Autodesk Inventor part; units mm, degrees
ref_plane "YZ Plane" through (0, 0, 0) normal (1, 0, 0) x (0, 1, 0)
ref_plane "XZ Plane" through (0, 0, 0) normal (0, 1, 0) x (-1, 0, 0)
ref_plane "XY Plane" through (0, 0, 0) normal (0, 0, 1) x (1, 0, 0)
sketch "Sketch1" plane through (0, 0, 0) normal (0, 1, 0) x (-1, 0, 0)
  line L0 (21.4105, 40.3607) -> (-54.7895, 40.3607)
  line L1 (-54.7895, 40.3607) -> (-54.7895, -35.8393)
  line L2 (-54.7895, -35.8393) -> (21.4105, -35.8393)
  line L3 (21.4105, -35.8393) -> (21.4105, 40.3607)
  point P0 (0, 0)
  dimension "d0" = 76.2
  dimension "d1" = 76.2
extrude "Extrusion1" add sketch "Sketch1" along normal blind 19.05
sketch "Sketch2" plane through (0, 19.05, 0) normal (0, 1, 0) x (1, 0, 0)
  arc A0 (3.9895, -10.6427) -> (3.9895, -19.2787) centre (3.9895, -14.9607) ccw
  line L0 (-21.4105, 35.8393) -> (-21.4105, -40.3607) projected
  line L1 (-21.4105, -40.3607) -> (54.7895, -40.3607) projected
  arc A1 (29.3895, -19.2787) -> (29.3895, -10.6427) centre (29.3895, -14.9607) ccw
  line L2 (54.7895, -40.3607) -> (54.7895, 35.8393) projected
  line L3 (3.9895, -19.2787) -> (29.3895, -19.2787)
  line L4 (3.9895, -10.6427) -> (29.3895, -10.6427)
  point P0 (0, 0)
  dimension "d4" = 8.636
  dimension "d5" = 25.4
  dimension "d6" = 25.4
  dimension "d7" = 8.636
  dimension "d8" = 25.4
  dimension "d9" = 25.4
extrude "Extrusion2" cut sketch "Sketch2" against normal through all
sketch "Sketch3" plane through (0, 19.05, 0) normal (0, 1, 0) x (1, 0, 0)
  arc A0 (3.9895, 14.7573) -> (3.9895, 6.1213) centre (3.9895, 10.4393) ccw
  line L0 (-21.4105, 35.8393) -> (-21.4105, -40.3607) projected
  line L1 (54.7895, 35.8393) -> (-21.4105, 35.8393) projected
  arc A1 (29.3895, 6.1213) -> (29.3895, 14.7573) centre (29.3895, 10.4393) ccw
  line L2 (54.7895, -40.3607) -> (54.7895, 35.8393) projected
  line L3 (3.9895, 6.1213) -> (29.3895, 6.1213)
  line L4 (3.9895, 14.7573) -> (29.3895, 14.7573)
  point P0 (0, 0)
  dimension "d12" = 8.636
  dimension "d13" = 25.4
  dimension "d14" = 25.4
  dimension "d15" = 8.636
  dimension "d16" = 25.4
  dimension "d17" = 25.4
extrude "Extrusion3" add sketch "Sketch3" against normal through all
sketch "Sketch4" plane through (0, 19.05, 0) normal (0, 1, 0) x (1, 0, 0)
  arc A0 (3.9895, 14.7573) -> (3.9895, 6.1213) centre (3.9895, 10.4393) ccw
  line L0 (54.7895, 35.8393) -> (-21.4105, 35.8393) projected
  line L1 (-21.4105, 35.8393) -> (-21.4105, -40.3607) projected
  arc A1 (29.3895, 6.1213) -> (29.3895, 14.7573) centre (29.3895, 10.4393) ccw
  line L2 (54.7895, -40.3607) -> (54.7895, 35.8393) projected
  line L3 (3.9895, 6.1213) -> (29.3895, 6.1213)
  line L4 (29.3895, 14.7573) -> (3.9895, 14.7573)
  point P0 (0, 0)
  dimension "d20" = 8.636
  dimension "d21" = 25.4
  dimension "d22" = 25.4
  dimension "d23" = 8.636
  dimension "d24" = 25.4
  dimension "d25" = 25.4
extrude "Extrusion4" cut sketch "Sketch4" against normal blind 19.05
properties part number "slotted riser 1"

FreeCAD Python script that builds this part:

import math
import FreeCAD as App
import Part
import Sketcher
from FreeCAD import Vector
Q = App.Units.Quantity


def add_polygon(sketch, points):
    """Adds a closed chain of lines whose ends are joined by coincident constraints."""
    first, n = sketch.GeometryCount, len(points)
    for a, b in zip(points, points[1:] + points[:1]):
        sketch.addGeometry(Part.LineSegment(App.Vector(*a, 0), App.Vector(*b, 0)), False)
    for i in range(n):
        sketch.addConstraint(Sketcher.Constraint("Coincident", first + i, 2, first + (i + 1) % n, 1))

doc = App.newDocument("Part")
params = doc.addObject("Spreadsheet::Sheet", "Params")
for row, (alias, value) in enumerate([
    ("sketch1_width", "3 in"),
    ("pad1_length", "0.75 in"),
    ("sketch2_width", "1 in"),
    ("sketch2_radius", "0.17 in"),
    ("sketch3_width", "1 in"),
    ("sketch3_radius", "0.17 in"),
    ("sketch4_width", "1 in"),
    ("sketch4_radius", "0.17 in"),
    ("pocket2_length", "0.75 in"),
], start=1):
    params.set(f"A{row}", alias)
    params.set(f"B{row}", "=" + value)
    params.setAlias(f"B{row}", alias)

body = doc.addObject("PartDesign::Body", "Body")

# Sketch on XZ plane
sketch1 = body.newObject("Sketcher::SketchObject", "Sketch")
sketch1.AttachmentSupport = (doc.getObject("XZ_Plane"), [""])
sketch1.MapMode = "FlatFace"
add_polygon(sketch1, [(-21, -36), (-21, 40), (55, 40), (55, -36)])  # lines 0-3
sketch1.addConstraint(Sketcher.Constraint("Vertical", 0))
sketch1.addConstraint(Sketcher.Constraint("Horizontal", 1))
sketch1.addConstraint(Sketcher.Constraint("Vertical", 2))
sketch1.addConstraint(Sketcher.Constraint("Horizontal", 3))
sketch1.addConstraint(Sketcher.Constraint("Equal", 3, 0))
sketch1.addConstraint(Sketcher.Constraint("DistanceX", 1, 1, 1, 2, Q("3 in")))
sketch1.addConstraint(Sketcher.Constraint("DistanceY", -1, 1, 0, 2, Q("1.589 in")))
sketch1.addConstraint(Sketcher.Constraint("DistanceX", 0, 2, -1, 1, Q("21.4105 mm")))
sketch1.setExpression("Constraints[9]", "Params.sketch1_width")
pad1 = body.newObject("PartDesign::Pad", "Pad")
pad1.Profile = sketch1
pad1.setExpression("Length", "Params.pad1_length")
pad1.Reversed = True

# Sketch on XZ plane
sketch2 = body.newObject("Sketcher::SketchObject", "Sketch001")
sketch2.AttachmentSupport = (doc.getObject("XZ_Plane"), [""])
sketch2.MapMode = "FlatFace"
sketch2.AttachmentOffset = App.Placement(Vector(0, 0, -0.75 * 25.4), App.Rotation())
sketch2.addGeometry(Part.LineSegment(Vector(29.4, 10.6, 0), Vector(4, 10.6, 0)), False)
sketch2.addGeometry(Part.ArcOfCircle(Part.Circle(Vector(4, 15, 0), Vector(0, 0, 1), 4.3), math.radians(90), math.radians(270)), False)
sketch2.addGeometry(Part.LineSegment(Vector(4, 19.3, 0), Vector(29.4, 19.3, 0)), False)
sketch2.addGeometry(Part.ArcOfCircle(Part.Circle(Vector(29.4, 15, 0), Vector(0, 0, 1), 4.3), math.radians(-90), math.radians(90)), False)
sketch2.addConstraint(Sketcher.Constraint("Tangent", 0, 2, 1, 2))
sketch2.addConstraint(Sketcher.Constraint("Tangent", 1, 1, 2, 1))
sketch2.addConstraint(Sketcher.Constraint("Tangent", 2, 2, 3, 2))
sketch2.addConstraint(Sketcher.Constraint("Tangent", 3, 1, 0, 1))
sketch2.addConstraint(Sketcher.Constraint("Horizontal", 0))
sketch2.addConstraint(Sketcher.Constraint("Horizontal", 2))
sketch2.addConstraint(Sketcher.Constraint("DistanceX", 0, 2, 0, 1, Q("1 in")))
sketch2.addConstraint(Sketcher.Constraint("Radius", 1, Q("0.17 in")))
sketch2.addConstraint(Sketcher.Constraint("DistanceY", -1, 1, 1, 3, Q("0.589 in")))
sketch2.addConstraint(Sketcher.Constraint("DistanceX", -1, 1, 1, 3, Q("3.9895 mm")))
sketch2.setExpression("Constraints[6]", "Params.sketch2_width")
sketch2.setExpression("Constraints[7]", "Params.sketch2_radius")
pocket1 = body.newObject("PartDesign::Pocket", "Pocket")
pocket1.Profile = sketch2
pocket1.Type = "ThroughAll"
pocket1.Reversed = True

# Sketch on XZ plane
sketch3 = body.newObject("Sketcher::SketchObject", "Sketch002")
sketch3.AttachmentSupport = (doc.getObject("XZ_Plane"), [""])
sketch3.MapMode = "FlatFace"
sketch3.AttachmentOffset = App.Placement(Vector(0, 0, -0.75 * 25.4), App.Rotation())
sketch3.addGeometry(Part.LineSegment(Vector(29.4, -14.8, 0), Vector(4, -14.8, 0)), False)
sketch3.addGeometry(Part.ArcOfCircle(Part.Circle(Vector(4, -10.4, 0), Vector(0, 0, 1), 4.3), math.radians(90), math.radians(270)), False)
sketch3.addGeometry(Part.LineSegment(Vector(4, -6.1, 0), Vector(29.4, -6.1, 0)), False)
sketch3.addGeometry(Part.ArcOfCircle(Part.Circle(Vector(29.4, -10.4, 0), Vector(0, 0, 1), 4.3), math.radians(-90), math.radians(90)), False)
sketch3.addConstraint(Sketcher.Constraint("Tangent", 0, 2, 1, 2))
sketch3.addConstraint(Sketcher.Constraint("Tangent", 1, 1, 2, 1))
sketch3.addConstraint(Sketcher.Constraint("Tangent", 2, 2, 3, 2))
sketch3.addConstraint(Sketcher.Constraint("Tangent", 3, 1, 0, 1))
sketch3.addConstraint(Sketcher.Constraint("Horizontal", 0))
sketch3.addConstraint(Sketcher.Constraint("Horizontal", 2))
sketch3.addConstraint(Sketcher.Constraint("DistanceX", 0, 2, 0, 1, Q("1 in")))
sketch3.addConstraint(Sketcher.Constraint("Radius", 1, Q("0.17 in")))
sketch3.addConstraint(Sketcher.Constraint("DistanceY", 1, 3, -1, 1, Q("0.411 in")))
sketch3.addConstraint(Sketcher.Constraint("DistanceX", -1, 1, 1, 3, Q("3.9895 mm")))
sketch3.setExpression("Constraints[6]", "Params.sketch3_width")
sketch3.setExpression("Constraints[7]", "Params.sketch3_radius")
pad2 = body.newObject("PartDesign::Pad", "Pad001")
pad2.Profile = sketch3
pad2.Type = "UpToLast"

# Sketch on XZ plane
sketch4 = body.newObject("Sketcher::SketchObject", "Sketch003")
sketch4.AttachmentSupport = (doc.getObject("XZ_Plane"), [""])
sketch4.MapMode = "FlatFace"
sketch4.AttachmentOffset = App.Placement(Vector(0, 0, -0.75 * 25.4), App.Rotation())
sketch4.addGeometry(Part.LineSegment(Vector(29.4, -14.8, 0), Vector(4, -14.8, 0)), False)
sketch4.addGeometry(Part.ArcOfCircle(Part.Circle(Vector(4, -10.4, 0), Vector(0, 0, 1), 4.3), math.radians(90), math.radians(270)), False)
sketch4.addGeometry(Part.LineSegment(Vector(4, -6.1, 0), Vector(29.4, -6.1, 0)), False)
sketch4.addGeometry(Part.ArcOfCircle(Part.Circle(Vector(29.4, -10.4, 0), Vector(0, 0, 1), 4.3), math.radians(-90), math.radians(90)), False)
sketch4.addConstraint(Sketcher.Constraint("Tangent", 0, 2, 1, 2))
sketch4.addConstraint(Sketcher.Constraint("Tangent", 1, 1, 2, 1))
sketch4.addConstraint(Sketcher.Constraint("Tangent", 2, 2, 3, 2))
sketch4.addConstraint(Sketcher.Constraint("Tangent", 3, 1, 0, 1))
sketch4.addConstraint(Sketcher.Constraint("Horizontal", 0))
sketch4.addConstraint(Sketcher.Constraint("Horizontal", 2))
sketch4.addConstraint(Sketcher.Constraint("DistanceX", 0, 2, 0, 1, Q("1 in")))
sketch4.addConstraint(Sketcher.Constraint("Radius", 1, Q("0.17 in")))
sketch4.addConstraint(Sketcher.Constraint("DistanceY", 1, 3, -1, 1, Q("0.411 in")))
sketch4.addConstraint(Sketcher.Constraint("DistanceX", -1, 1, 1, 3, Q("3.9895 mm")))
sketch4.setExpression("Constraints[6]", "Params.sketch4_width")
sketch4.setExpression("Constraints[7]", "Params.sketch4_radius")
pocket2 = body.newObject("PartDesign::Pocket", "Pocket001")
pocket2.Profile = sketch4
pocket2.setExpression("Length", "Params.pocket2_length")
pocket2.Reversed = True

doc.recompute()
